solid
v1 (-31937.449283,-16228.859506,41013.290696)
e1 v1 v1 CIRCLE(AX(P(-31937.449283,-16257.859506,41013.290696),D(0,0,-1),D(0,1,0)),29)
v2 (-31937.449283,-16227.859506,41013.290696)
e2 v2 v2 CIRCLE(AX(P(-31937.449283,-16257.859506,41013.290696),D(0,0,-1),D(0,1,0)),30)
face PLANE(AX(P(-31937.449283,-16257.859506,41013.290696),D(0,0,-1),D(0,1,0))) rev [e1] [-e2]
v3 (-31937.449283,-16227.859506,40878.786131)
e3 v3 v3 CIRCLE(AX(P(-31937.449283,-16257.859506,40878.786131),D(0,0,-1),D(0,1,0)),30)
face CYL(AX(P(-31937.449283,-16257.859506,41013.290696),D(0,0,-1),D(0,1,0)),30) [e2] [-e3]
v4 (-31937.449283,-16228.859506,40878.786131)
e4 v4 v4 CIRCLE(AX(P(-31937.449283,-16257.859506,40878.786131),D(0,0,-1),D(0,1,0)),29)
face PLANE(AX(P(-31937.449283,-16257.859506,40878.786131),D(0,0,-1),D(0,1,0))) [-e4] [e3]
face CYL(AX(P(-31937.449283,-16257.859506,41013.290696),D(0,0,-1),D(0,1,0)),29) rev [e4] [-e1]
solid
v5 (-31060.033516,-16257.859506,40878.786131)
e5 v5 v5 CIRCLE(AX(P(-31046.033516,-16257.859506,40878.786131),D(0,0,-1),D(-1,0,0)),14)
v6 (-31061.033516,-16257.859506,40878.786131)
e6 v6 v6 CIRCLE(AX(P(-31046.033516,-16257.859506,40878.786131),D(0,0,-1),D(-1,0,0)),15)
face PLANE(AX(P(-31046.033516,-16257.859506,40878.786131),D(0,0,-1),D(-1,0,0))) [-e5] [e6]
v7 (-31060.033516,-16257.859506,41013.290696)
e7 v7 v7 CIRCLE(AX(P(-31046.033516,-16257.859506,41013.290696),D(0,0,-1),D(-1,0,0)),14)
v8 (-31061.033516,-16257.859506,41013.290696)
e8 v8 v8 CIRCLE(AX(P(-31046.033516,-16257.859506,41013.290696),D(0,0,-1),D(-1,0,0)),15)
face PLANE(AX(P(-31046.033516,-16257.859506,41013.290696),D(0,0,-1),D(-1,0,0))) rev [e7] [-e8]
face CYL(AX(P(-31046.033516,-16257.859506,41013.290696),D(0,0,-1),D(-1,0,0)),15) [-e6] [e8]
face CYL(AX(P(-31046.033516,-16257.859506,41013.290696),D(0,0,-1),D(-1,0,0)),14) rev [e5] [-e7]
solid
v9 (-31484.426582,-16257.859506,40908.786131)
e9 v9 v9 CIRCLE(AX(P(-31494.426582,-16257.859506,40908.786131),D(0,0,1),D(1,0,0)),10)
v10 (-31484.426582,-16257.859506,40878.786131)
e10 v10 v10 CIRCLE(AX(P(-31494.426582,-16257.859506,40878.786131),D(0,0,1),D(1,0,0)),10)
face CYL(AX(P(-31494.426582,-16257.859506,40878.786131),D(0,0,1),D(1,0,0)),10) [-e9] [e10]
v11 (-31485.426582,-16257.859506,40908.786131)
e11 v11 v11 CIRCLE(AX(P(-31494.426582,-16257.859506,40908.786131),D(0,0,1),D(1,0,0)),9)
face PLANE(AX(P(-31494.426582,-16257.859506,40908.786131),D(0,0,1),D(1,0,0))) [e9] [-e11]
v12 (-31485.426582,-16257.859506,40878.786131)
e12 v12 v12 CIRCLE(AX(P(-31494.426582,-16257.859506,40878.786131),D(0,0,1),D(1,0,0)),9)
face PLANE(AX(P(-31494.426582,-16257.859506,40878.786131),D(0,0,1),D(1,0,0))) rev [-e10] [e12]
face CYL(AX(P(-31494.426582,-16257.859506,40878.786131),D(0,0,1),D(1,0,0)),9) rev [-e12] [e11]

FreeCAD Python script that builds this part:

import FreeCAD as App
import Part
import Sketcher

V = App.Vector
Q = App.Units.Quantity

doc = App.newDocument("Part")
body = doc.addObject("PartDesign::Body", "Body")

# Sketch on XY plane
sketch1 = body.newObject("Sketcher::SketchObject", "Sketch")
sketch1.AttachmentSupport = (doc.getObject("XY_Plane"), [""])
sketch1.MapMode = "FlatFace"
sketch1.AttachmentOffset = App.Placement(V(0, 0, 41013.290696), App.Rotation())
sketch1.addGeometry(Part.Circle(V(-31937.449283, -16257.859506, 0), V(0, 0, 1), 30), False)
sketch1.addGeometry(Part.Circle(V(-31937.449283, -16257.859506, 0), V(0, 0, 1), 29), False)
sketch1.addConstraint(Sketcher.Constraint("Coincident", 1, 3, 0, 3))
sketch1.addConstraint(Sketcher.Constraint("Diameter", 0, Q("60 mm")))
sketch1.addConstraint(Sketcher.Constraint("Diameter", 1, Q("58 mm")))
sketch1.addConstraint(Sketcher.Constraint("DistanceX", 0, 3, -1, 1, Q("31937.449283 mm")))
sketch1.addConstraint(Sketcher.Constraint("DistanceY", 0, 3, -1, 1, Q("16257.859506 mm")))

# Sketch on XZ plane
sketch2 = body.newObject("Sketcher::SketchObject", "Sketch001")
sketch2.AttachmentSupport = (doc.getObject("XZ_Plane"), [""])
sketch2.MapMode = "FlatFace"
sketch2.AttachmentOffset = App.Placement(V(0, 0, 16257.859506), App.Rotation())
sketch2.addGeometry(Part.LineSegment(V(-31937.449283, 41013.290696, 0), V(-31937.449283, 40878.786131, 0)), False)
sketch2.addConstraint(Sketcher.Constraint("Vertical", 0))
sketch2.addConstraint(Sketcher.Constraint("DistanceY", 0, 2, 0, 1, Q("134.504565 mm")))
sketch2.addConstraint(Sketcher.Constraint("DistanceY", -1, 1, 0, 2, Q("40878.786131 mm")))
sketch2.addConstraint(Sketcher.Constraint("DistanceX", 0, 1, -1, 1, Q("31937.449283 mm")))
doc.recompute()

additivepipe = body.newObject("PartDesign::AdditivePipe", "AdditivePipe")
additivepipe.Profile = sketch1
additivepipe.Spine = (sketch2, ["Edge1"])
body2 = doc.addObject("PartDesign::Body", "Body001")

# Sketch on XY plane
sketch3 = body2.newObject("Sketcher::SketchObject", "Sketch002")
sketch3.AttachmentSupport = (doc.getObject("XY_Plane001"), [""])
sketch3.MapMode = "FlatFace"
sketch3.AttachmentOffset = App.Placement(V(0, 0, 40878.786131), App.Rotation())
sketch3.addGeometry(Part.Circle(V(-31494.426582, -16257.859506, 0), V(0, 0, 1), 10), False)
sketch3.addGeometry(Part.Circle(V(-31494.426582, -16257.859506, 0), V(0, 0, 1), 9), False)
sketch3.addConstraint(Sketcher.Constraint("Coincident", 1, 3, 0, 3))
sketch3.addConstraint(Sketcher.Constraint("Diameter", 0, Q("20 mm")))
sketch3.addConstraint(Sketcher.Constraint("Diameter", 1, Q("18 mm")))
sketch3.addConstraint(Sketcher.Constraint("DistanceX", 0, 3, -1, 1, Q("31494.426582 mm")))
sketch3.addConstraint(Sketcher.Constraint("DistanceY", 0, 3, -1, 1, Q("16257.859506 mm")))

# Sketch on XZ plane
sketch4 = body2.newObject("Sketcher::SketchObject", "Sketch003")
sketch4.AttachmentSupport = (doc.getObject("XZ_Plane001"), [""])
sketch4.MapMode = "FlatFace"
sketch4.AttachmentOffset = App.Placement(V(0, 0, 16257.859506), App.Rotation())
sketch4.addGeometry(Part.LineSegment(V(-31494.426582, 40878.786131, 0), V(-31494.426582, 40908.786131, 0)), False)
sketch4.addConstraint(Sketcher.Constraint("Vertical", 0))
sketch4.addConstraint(Sketcher.Constraint("DistanceY", 0, 1, 0, 2, Q("30 mm")))
sketch4.addConstraint(Sketcher.Constraint("DistanceX", 0, 1, -1, 1, Q("31494.426582 mm")))
sketch4.addConstraint(Sketcher.Constraint("DistanceY", -1, 1, 0, 1, Q("40878.786131 mm")))
doc.recompute()

additivepipe2 = body2.newObject("PartDesign::AdditivePipe", "AdditivePipe001")
additivepipe2.Profile = sketch3
additivepipe2.Spine = (sketch4, ["Edge1"])
body3 = doc.addObject("PartDesign::Body", "Body002")

# Sketch on XY plane
sketch5 = body3.newObject("Sketcher::SketchObject", "Sketch004")
sketch5.AttachmentSupport = (doc.getObject("XY_Plane002"), [""])
sketch5.MapMode = "FlatFace"
sketch5.AttachmentOffset = App.Placement(V(0, 0, 41013.290696), App.Rotation())
sketch5.addGeometry(Part.Circle(V(-31046.033516, -16257.859506, 0), V(0, 0, 1), 15), False)
sketch5.addGeometry(Part.Circle(V(-31046.033516, -16257.859506, 0), V(0, 0, 1), 14), False)
sketch5.addConstraint(Sketcher.Constraint("Coincident", 1, 3, 0, 3))
sketch5.addConstraint(Sketcher.Constraint("Diameter", 0, Q("30 mm")))
sketch5.addConstraint(Sketcher.Constraint("Diameter", 1, Q("28 mm")))
sketch5.addConstraint(Sketcher.Constraint("DistanceX", 0, 3, -1, 1, Q("31046.033516 mm")))
sketch5.addConstraint(Sketcher.Constraint("DistanceY", 0, 3, -1, 1, Q("16257.859506 mm")))

# Sketch on XZ plane
sketch6 = body3.newObject("Sketcher::SketchObject", "Sketch005")
sketch6.AttachmentSupport = (doc.getObject("XZ_Plane002"), [""])
sketch6.MapMode = "FlatFace"
sketch6.AttachmentOffset = App.Placement(V(0, 0, 16257.859506), App.Rotation())
sketch6.addGeometry(Part.LineSegment(V(-31046.033516, 41013.290696, 0), V(-31046.033516, 40878.786131, 0)), False)
sketch6.addConstraint(Sketcher.Constraint("Vertical", 0))
sketch6.addConstraint(Sketcher.Constraint("DistanceY", 0, 2, 0, 1, Q("134.504565 mm")))
sketch6.addConstraint(Sketcher.Constraint("DistanceY", -1, 1, 0, 2, Q("40878.786131 mm")))
sketch6.addConstraint(Sketcher.Constraint("DistanceX", 0, 1, -1, 1, Q("31046.033516 mm")))
doc.recompute()

additivepipe3 = body3.newObject("PartDesign::AdditivePipe", "AdditivePipe002")
additivepipe3.Profile = sketch5
additivepipe3.Spine = (sketch6, ["Edge1"])

doc.recompute()
